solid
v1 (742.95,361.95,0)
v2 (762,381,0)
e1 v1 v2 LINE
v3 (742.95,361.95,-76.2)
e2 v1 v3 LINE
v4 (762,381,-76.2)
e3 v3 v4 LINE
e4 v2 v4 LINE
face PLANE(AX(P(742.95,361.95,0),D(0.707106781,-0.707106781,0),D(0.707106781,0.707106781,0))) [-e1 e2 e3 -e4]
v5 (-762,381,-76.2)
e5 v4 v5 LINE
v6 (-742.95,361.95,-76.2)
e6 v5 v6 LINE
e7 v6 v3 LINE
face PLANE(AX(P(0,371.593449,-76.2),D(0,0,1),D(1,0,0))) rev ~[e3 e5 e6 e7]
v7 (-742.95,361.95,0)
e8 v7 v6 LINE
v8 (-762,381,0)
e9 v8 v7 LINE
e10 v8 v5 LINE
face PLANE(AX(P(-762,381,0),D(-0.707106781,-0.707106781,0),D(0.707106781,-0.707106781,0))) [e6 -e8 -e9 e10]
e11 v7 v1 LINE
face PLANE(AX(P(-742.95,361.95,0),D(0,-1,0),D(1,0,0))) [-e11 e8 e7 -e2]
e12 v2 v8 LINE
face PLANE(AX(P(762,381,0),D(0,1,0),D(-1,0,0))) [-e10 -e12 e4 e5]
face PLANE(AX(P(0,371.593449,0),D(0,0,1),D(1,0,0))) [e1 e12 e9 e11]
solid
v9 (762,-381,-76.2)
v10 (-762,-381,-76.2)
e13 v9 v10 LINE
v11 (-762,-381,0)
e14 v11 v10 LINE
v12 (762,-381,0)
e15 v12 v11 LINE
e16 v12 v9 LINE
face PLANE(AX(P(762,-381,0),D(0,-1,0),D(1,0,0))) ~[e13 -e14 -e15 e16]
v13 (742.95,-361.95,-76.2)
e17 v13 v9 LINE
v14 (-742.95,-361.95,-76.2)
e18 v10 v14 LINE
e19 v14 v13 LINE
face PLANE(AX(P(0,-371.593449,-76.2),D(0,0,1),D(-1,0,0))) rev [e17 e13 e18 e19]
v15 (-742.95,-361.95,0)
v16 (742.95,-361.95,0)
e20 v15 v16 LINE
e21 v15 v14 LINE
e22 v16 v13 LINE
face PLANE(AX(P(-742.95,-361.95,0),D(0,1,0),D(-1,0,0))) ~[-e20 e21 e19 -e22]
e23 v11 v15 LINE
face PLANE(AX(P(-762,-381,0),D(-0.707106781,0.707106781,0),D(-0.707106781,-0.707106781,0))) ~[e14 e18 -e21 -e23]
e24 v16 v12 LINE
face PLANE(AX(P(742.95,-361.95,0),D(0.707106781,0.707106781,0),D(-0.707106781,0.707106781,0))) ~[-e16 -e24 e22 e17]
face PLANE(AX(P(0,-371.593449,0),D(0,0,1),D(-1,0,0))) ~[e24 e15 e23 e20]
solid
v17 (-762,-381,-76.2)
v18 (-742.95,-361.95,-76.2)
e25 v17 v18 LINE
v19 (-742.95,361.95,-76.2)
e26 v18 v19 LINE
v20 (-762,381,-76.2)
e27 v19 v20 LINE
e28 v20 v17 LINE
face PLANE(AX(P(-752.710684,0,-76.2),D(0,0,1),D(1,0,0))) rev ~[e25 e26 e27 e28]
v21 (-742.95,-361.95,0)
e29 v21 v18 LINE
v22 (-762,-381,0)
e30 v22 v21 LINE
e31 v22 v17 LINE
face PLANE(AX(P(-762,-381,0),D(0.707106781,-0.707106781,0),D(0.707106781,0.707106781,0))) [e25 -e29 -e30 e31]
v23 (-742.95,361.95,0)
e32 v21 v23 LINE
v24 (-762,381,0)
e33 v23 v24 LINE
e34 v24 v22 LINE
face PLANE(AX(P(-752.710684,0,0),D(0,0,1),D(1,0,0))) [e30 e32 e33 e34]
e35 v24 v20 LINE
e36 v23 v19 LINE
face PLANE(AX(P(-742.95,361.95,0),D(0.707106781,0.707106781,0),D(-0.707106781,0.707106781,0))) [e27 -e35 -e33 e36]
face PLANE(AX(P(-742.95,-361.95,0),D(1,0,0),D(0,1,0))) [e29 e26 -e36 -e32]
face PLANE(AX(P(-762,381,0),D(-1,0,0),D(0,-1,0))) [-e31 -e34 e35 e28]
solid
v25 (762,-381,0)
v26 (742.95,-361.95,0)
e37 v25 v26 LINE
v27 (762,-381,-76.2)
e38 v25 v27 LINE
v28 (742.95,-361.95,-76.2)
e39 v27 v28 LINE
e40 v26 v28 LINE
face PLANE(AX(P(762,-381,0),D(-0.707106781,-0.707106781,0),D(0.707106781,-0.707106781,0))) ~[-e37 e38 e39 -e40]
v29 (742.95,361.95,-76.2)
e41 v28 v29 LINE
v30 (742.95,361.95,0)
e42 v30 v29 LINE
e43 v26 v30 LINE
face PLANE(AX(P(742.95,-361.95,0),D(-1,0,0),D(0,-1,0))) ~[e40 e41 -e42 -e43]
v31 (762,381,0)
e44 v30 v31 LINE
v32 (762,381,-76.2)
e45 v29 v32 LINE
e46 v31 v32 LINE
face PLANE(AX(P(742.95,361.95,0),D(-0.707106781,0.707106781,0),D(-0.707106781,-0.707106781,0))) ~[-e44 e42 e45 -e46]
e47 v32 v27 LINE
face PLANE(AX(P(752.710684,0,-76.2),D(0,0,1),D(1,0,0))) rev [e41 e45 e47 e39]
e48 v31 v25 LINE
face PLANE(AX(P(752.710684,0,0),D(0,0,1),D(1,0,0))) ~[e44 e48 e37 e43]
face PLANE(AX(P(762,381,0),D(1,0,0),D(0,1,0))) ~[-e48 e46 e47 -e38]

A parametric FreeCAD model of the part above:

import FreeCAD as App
import Part
import Sketcher

V = App.Vector
Q = App.Units.Quantity


def add_polygon(sketch, points):
    """Adds a closed chain of lines whose ends are joined by coincident constraints."""
    first, n = sketch.GeometryCount, len(points)
    for a, b in zip(points, points[1:] + points[:1]):
        sketch.addGeometry(Part.LineSegment(App.Vector(*a, 0), App.Vector(*b, 0)), False)
    for i in range(n):
        sketch.addConstraint(Sketcher.Constraint("Coincident", first + i, 2, first + (i + 1) % n, 1))

doc = App.newDocument("Part")
body = doc.addObject("PartDesign::Body", "Body")

# Sketch on XY plane
sketch1 = doc.addObject("Sketcher::SketchObject", "Sketch")
body.addObject(sketch1)
sketch1.AttachmentSupport = (doc.XY_Plane, [""])
sketch1.MapMode = "FlatFace"
add_polygon(sketch1, [(-762, 381), (-762, -381), (-743, -362), (-743, 362)])  # lines 0-3
sketch1.addConstraint(Sketcher.Constraint("Vertical", 0))
sketch1.addConstraint(Sketcher.Constraint("Vertical", 2))
sketch1.addConstraint(Sketcher.Constraint("Perpendicular", 1, 3))
sketch1.addConstraint(Sketcher.Constraint("Equal", 1, 3))
sketch1.addConstraint(Sketcher.Constraint("DistanceY", 0, 2, 0, 1, Q("30 in")))
sketch1.addConstraint(Sketcher.Constraint("DistanceY", 2, 1, 2, 2, Q("28.5 in")))
sketch1.addConstraint(Sketcher.Constraint("DistanceX", 0, 2, -1, 1, Q("30 in")))
sketch1.addConstraint(Sketcher.Constraint("DistanceY", 0, 2, -1, 1, Q("15 in")))
pad1 = doc.addObject("PartDesign::Pad", "Pad")
body.addObject(pad1)
pad1.Profile = sketch1
pad1.Length = Q("3 in")
pad1.Reversed = True
body2 = doc.addObject("PartDesign::Body", "Body001")

# Sketch on XY plane
sketch2 = doc.addObject("Sketcher::SketchObject", "Sketch001")
body2.addObject(sketch2)
sketch2.AttachmentSupport = (doc.getObject("XY_Plane001"), [""])
sketch2.MapMode = "FlatFace"
add_polygon(sketch2, [(743, 362), (762, 381), (-762, 381), (-743, 362)])  # lines 0-3
sketch2.addConstraint(Sketcher.Constraint("Horizontal", 1))
sketch2.addConstraint(Sketcher.Constraint("Horizontal", 3))
sketch2.addConstraint(Sketcher.Constraint("Perpendicular", 0, 2))
sketch2.addConstraint(Sketcher.Constraint("Equal", 0, 2))
sketch2.addConstraint(Sketcher.Constraint("DistanceX", 1, 2, 1, 1, Q("60 in")))
sketch2.addConstraint(Sketcher.Constraint("DistanceX", 3, 1, 3, 2, Q("58.5 in")))
sketch2.addConstraint(Sketcher.Constraint("DistanceX", -1, 1, 0, 2, Q("30 in")))
sketch2.addConstraint(Sketcher.Constraint("DistanceY", -1, 1, 0, 2, Q("15 in")))
pad2 = doc.addObject("PartDesign::Pad", "Pad001")
body2.addObject(pad2)
pad2.Profile = sketch2
pad2.Length = Q("3 in")
pad2.Reversed = True
body3 = doc.addObject("PartDesign::Body", "Body002")
doc.recompute()

mirroring = doc.addObject("Part::Mirroring", "Mirroring")
mirroring.Source = body2
mirroring.Base = V(0, 0, 0)
mirroring.Normal = V(0, -1, 0)
body3.BaseFeature = mirroring
doc.recompute()
body4 = doc.addObject("PartDesign::Body", "Body003")
doc.recompute()

mirroring2 = doc.addObject("Part::Mirroring", "Mirroring001")
mirroring2.Source = body
mirroring2.Base = V(0, 0, 0)
mirroring2.Normal = V(1, 0, 0)
body4.BaseFeature = mirroring2
doc.recompute()
mirroring.Visibility = False
mirroring2.Visibility = False

doc.recompute()
